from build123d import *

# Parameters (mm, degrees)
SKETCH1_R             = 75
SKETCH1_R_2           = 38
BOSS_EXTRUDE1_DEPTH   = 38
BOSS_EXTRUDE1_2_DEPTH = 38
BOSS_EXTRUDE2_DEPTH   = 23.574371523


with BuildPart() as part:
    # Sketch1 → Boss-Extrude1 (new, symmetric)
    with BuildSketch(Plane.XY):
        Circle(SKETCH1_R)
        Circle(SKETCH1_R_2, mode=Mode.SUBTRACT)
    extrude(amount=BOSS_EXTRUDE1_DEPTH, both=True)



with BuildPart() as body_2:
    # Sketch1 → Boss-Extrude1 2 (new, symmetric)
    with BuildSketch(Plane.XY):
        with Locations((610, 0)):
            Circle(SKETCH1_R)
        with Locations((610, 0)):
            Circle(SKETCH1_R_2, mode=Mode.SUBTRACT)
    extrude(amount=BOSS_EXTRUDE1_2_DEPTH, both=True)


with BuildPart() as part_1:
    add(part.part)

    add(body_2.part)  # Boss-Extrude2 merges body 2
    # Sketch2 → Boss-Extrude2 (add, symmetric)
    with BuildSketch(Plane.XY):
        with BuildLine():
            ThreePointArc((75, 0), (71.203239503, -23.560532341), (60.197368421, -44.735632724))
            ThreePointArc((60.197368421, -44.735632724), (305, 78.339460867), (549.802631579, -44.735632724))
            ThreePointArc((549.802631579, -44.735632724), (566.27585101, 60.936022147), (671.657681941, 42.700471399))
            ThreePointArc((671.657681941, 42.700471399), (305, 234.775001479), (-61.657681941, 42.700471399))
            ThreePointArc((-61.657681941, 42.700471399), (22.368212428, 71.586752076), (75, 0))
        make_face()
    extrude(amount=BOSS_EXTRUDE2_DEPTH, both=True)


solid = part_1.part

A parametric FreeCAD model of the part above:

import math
import FreeCAD as App
import Part
import Sketcher
from FreeCAD import Vector

doc = App.newDocument("Part")
body = doc.addObject("PartDesign::Body", "Body")

# Sketch on XY plane
sketch1 = body.newObject("Sketcher::SketchObject", "Sketch")
sketch1.AttachmentSupport = (doc.getObject("XY_Plane"), [""])
sketch1.MapMode = "FlatFace"
sketch1.addGeometry([
    Part.Circle(Vector(0, 0, 0), Vector(0, 0, 1), 75),
    Part.Circle(Vector(0, 0, 0), Vector(0, 0, 1), 38),
], False)
sketch1.addConstraint([
    Sketcher.Constraint("Coincident", 0, 3, -1, 1),
    Sketcher.Constraint("Coincident", 1, 3, -1, 1),
    Sketcher.Constraint("Diameter", 0, 150.0),
    Sketcher.Constraint("Diameter", 1, 76.0),
])
pad1 = body.newObject("PartDesign::Pad", "Pad")
pad1.Profile = sketch1
pad1.Length = 76
pad1.Midplane = True
body2 = doc.addObject("PartDesign::Body", "Body001")

# Sketch on XY plane
sketch2 = body2.newObject("Sketcher::SketchObject", "Sketch001")
sketch2.AttachmentSupport = (doc.getObject("XY_Plane001"), [""])
sketch2.MapMode = "FlatFace"
sketch2.addGeometry([
    Part.Circle(Vector(610, 0, 0), Vector(0, 0, 1), 75),
    Part.Circle(Vector(610, 0, 0), Vector(0, 0, 1), 38),
], False)
sketch2.addConstraint([
    Sketcher.Constraint("Coincident", 1, 3, 0, 3),
    Sketcher.Constraint("PointOnObject", 0, 3, -1),
    Sketcher.Constraint("Diameter", 0, 150.0),
    Sketcher.Constraint("Diameter", 1, 76.0),
    Sketcher.Constraint("DistanceX", -1, 1, 0, 3, 610.0),
])
pad2 = body2.newObject("PartDesign::Pad", "Pad001")
pad2.Profile = sketch2
pad2.Length = 76
pad2.Midplane = True
body.AllowCompound = True
doc.recompute()

boolean = body.newObject("PartDesign::Boolean", "Boolean")
boolean.Type = "Fuse"
boolean.addObjects([body2])

# Sketch on XY plane
sketch3 = body.newObject("Sketcher::SketchObject", "Sketch002")
sketch3.AttachmentSupport = (doc.getObject("XY_Plane"), [""])
sketch3.MapMode = "FlatFace"
sketch3.addGeometry([
    Part.ArcOfCircle(Part.Circle(Vector(0, 0, 0), Vector(0, 0, 1), 75), math.radians(-37), math.radians(0)),  # 0
    Part.ArcOfCircle(Part.Circle(Vector(305, -227, 0), Vector(0, 0, 1), 305), math.radians(37), math.radians(143)),  # 1
    Part.ArcOfCircle(Part.Circle(Vector(610, 0, 0), Vector(0, 0, 1), 75), math.radians(35), math.radians(217)),  # 2
    Part.ArcOfCircle(Part.Circle(Vector(305, -211, 0), Vector(0, 0, 1), 446), math.radians(35), math.radians(145)),  # 3
    Part.ArcOfCircle(Part.Circle(Vector(0, 0, 0), Vector(0, 0, 1), 75), math.radians(0), math.radians(145)),  # 4
], False)
sketch3.addConstraint([
    Sketcher.Constraint("Tangent", 0, 1, 1, 2),
    Sketcher.Constraint("Tangent", 1, 1, 2, 2),
    Sketcher.Constraint("Tangent", 2, 1, 3, 1),
    Sketcher.Constraint("Tangent", 3, 2, 4, 2),
    Sketcher.Constraint("Tangent", 4, 1, 0, 2),
    Sketcher.Constraint("Coincident", 0, 3, -1, 1),
    Sketcher.Constraint("Equal", 0, 2),
    Sketcher.Constraint("Equal", 2, 4),
    Sketcher.Constraint("PointOnObject", 2, 3, -1),
    Sketcher.Constraint("PointOnObject", 4, 1, -1),
    Sketcher.Constraint("Radius", 0, 75.0),
    Sketcher.Constraint("Radius", 1, 305.0),
    Sketcher.Constraint("Radius", 3, 446.0),
    Sketcher.Constraint("DistanceX", -1, 1, 1, 3, 305.0),
])
pad3 = body.newObject("PartDesign::Pad", "Pad002")
pad3.Profile = sketch3
pad3.Length = 47.148743
pad3.Midplane = True

doc.recompute()
